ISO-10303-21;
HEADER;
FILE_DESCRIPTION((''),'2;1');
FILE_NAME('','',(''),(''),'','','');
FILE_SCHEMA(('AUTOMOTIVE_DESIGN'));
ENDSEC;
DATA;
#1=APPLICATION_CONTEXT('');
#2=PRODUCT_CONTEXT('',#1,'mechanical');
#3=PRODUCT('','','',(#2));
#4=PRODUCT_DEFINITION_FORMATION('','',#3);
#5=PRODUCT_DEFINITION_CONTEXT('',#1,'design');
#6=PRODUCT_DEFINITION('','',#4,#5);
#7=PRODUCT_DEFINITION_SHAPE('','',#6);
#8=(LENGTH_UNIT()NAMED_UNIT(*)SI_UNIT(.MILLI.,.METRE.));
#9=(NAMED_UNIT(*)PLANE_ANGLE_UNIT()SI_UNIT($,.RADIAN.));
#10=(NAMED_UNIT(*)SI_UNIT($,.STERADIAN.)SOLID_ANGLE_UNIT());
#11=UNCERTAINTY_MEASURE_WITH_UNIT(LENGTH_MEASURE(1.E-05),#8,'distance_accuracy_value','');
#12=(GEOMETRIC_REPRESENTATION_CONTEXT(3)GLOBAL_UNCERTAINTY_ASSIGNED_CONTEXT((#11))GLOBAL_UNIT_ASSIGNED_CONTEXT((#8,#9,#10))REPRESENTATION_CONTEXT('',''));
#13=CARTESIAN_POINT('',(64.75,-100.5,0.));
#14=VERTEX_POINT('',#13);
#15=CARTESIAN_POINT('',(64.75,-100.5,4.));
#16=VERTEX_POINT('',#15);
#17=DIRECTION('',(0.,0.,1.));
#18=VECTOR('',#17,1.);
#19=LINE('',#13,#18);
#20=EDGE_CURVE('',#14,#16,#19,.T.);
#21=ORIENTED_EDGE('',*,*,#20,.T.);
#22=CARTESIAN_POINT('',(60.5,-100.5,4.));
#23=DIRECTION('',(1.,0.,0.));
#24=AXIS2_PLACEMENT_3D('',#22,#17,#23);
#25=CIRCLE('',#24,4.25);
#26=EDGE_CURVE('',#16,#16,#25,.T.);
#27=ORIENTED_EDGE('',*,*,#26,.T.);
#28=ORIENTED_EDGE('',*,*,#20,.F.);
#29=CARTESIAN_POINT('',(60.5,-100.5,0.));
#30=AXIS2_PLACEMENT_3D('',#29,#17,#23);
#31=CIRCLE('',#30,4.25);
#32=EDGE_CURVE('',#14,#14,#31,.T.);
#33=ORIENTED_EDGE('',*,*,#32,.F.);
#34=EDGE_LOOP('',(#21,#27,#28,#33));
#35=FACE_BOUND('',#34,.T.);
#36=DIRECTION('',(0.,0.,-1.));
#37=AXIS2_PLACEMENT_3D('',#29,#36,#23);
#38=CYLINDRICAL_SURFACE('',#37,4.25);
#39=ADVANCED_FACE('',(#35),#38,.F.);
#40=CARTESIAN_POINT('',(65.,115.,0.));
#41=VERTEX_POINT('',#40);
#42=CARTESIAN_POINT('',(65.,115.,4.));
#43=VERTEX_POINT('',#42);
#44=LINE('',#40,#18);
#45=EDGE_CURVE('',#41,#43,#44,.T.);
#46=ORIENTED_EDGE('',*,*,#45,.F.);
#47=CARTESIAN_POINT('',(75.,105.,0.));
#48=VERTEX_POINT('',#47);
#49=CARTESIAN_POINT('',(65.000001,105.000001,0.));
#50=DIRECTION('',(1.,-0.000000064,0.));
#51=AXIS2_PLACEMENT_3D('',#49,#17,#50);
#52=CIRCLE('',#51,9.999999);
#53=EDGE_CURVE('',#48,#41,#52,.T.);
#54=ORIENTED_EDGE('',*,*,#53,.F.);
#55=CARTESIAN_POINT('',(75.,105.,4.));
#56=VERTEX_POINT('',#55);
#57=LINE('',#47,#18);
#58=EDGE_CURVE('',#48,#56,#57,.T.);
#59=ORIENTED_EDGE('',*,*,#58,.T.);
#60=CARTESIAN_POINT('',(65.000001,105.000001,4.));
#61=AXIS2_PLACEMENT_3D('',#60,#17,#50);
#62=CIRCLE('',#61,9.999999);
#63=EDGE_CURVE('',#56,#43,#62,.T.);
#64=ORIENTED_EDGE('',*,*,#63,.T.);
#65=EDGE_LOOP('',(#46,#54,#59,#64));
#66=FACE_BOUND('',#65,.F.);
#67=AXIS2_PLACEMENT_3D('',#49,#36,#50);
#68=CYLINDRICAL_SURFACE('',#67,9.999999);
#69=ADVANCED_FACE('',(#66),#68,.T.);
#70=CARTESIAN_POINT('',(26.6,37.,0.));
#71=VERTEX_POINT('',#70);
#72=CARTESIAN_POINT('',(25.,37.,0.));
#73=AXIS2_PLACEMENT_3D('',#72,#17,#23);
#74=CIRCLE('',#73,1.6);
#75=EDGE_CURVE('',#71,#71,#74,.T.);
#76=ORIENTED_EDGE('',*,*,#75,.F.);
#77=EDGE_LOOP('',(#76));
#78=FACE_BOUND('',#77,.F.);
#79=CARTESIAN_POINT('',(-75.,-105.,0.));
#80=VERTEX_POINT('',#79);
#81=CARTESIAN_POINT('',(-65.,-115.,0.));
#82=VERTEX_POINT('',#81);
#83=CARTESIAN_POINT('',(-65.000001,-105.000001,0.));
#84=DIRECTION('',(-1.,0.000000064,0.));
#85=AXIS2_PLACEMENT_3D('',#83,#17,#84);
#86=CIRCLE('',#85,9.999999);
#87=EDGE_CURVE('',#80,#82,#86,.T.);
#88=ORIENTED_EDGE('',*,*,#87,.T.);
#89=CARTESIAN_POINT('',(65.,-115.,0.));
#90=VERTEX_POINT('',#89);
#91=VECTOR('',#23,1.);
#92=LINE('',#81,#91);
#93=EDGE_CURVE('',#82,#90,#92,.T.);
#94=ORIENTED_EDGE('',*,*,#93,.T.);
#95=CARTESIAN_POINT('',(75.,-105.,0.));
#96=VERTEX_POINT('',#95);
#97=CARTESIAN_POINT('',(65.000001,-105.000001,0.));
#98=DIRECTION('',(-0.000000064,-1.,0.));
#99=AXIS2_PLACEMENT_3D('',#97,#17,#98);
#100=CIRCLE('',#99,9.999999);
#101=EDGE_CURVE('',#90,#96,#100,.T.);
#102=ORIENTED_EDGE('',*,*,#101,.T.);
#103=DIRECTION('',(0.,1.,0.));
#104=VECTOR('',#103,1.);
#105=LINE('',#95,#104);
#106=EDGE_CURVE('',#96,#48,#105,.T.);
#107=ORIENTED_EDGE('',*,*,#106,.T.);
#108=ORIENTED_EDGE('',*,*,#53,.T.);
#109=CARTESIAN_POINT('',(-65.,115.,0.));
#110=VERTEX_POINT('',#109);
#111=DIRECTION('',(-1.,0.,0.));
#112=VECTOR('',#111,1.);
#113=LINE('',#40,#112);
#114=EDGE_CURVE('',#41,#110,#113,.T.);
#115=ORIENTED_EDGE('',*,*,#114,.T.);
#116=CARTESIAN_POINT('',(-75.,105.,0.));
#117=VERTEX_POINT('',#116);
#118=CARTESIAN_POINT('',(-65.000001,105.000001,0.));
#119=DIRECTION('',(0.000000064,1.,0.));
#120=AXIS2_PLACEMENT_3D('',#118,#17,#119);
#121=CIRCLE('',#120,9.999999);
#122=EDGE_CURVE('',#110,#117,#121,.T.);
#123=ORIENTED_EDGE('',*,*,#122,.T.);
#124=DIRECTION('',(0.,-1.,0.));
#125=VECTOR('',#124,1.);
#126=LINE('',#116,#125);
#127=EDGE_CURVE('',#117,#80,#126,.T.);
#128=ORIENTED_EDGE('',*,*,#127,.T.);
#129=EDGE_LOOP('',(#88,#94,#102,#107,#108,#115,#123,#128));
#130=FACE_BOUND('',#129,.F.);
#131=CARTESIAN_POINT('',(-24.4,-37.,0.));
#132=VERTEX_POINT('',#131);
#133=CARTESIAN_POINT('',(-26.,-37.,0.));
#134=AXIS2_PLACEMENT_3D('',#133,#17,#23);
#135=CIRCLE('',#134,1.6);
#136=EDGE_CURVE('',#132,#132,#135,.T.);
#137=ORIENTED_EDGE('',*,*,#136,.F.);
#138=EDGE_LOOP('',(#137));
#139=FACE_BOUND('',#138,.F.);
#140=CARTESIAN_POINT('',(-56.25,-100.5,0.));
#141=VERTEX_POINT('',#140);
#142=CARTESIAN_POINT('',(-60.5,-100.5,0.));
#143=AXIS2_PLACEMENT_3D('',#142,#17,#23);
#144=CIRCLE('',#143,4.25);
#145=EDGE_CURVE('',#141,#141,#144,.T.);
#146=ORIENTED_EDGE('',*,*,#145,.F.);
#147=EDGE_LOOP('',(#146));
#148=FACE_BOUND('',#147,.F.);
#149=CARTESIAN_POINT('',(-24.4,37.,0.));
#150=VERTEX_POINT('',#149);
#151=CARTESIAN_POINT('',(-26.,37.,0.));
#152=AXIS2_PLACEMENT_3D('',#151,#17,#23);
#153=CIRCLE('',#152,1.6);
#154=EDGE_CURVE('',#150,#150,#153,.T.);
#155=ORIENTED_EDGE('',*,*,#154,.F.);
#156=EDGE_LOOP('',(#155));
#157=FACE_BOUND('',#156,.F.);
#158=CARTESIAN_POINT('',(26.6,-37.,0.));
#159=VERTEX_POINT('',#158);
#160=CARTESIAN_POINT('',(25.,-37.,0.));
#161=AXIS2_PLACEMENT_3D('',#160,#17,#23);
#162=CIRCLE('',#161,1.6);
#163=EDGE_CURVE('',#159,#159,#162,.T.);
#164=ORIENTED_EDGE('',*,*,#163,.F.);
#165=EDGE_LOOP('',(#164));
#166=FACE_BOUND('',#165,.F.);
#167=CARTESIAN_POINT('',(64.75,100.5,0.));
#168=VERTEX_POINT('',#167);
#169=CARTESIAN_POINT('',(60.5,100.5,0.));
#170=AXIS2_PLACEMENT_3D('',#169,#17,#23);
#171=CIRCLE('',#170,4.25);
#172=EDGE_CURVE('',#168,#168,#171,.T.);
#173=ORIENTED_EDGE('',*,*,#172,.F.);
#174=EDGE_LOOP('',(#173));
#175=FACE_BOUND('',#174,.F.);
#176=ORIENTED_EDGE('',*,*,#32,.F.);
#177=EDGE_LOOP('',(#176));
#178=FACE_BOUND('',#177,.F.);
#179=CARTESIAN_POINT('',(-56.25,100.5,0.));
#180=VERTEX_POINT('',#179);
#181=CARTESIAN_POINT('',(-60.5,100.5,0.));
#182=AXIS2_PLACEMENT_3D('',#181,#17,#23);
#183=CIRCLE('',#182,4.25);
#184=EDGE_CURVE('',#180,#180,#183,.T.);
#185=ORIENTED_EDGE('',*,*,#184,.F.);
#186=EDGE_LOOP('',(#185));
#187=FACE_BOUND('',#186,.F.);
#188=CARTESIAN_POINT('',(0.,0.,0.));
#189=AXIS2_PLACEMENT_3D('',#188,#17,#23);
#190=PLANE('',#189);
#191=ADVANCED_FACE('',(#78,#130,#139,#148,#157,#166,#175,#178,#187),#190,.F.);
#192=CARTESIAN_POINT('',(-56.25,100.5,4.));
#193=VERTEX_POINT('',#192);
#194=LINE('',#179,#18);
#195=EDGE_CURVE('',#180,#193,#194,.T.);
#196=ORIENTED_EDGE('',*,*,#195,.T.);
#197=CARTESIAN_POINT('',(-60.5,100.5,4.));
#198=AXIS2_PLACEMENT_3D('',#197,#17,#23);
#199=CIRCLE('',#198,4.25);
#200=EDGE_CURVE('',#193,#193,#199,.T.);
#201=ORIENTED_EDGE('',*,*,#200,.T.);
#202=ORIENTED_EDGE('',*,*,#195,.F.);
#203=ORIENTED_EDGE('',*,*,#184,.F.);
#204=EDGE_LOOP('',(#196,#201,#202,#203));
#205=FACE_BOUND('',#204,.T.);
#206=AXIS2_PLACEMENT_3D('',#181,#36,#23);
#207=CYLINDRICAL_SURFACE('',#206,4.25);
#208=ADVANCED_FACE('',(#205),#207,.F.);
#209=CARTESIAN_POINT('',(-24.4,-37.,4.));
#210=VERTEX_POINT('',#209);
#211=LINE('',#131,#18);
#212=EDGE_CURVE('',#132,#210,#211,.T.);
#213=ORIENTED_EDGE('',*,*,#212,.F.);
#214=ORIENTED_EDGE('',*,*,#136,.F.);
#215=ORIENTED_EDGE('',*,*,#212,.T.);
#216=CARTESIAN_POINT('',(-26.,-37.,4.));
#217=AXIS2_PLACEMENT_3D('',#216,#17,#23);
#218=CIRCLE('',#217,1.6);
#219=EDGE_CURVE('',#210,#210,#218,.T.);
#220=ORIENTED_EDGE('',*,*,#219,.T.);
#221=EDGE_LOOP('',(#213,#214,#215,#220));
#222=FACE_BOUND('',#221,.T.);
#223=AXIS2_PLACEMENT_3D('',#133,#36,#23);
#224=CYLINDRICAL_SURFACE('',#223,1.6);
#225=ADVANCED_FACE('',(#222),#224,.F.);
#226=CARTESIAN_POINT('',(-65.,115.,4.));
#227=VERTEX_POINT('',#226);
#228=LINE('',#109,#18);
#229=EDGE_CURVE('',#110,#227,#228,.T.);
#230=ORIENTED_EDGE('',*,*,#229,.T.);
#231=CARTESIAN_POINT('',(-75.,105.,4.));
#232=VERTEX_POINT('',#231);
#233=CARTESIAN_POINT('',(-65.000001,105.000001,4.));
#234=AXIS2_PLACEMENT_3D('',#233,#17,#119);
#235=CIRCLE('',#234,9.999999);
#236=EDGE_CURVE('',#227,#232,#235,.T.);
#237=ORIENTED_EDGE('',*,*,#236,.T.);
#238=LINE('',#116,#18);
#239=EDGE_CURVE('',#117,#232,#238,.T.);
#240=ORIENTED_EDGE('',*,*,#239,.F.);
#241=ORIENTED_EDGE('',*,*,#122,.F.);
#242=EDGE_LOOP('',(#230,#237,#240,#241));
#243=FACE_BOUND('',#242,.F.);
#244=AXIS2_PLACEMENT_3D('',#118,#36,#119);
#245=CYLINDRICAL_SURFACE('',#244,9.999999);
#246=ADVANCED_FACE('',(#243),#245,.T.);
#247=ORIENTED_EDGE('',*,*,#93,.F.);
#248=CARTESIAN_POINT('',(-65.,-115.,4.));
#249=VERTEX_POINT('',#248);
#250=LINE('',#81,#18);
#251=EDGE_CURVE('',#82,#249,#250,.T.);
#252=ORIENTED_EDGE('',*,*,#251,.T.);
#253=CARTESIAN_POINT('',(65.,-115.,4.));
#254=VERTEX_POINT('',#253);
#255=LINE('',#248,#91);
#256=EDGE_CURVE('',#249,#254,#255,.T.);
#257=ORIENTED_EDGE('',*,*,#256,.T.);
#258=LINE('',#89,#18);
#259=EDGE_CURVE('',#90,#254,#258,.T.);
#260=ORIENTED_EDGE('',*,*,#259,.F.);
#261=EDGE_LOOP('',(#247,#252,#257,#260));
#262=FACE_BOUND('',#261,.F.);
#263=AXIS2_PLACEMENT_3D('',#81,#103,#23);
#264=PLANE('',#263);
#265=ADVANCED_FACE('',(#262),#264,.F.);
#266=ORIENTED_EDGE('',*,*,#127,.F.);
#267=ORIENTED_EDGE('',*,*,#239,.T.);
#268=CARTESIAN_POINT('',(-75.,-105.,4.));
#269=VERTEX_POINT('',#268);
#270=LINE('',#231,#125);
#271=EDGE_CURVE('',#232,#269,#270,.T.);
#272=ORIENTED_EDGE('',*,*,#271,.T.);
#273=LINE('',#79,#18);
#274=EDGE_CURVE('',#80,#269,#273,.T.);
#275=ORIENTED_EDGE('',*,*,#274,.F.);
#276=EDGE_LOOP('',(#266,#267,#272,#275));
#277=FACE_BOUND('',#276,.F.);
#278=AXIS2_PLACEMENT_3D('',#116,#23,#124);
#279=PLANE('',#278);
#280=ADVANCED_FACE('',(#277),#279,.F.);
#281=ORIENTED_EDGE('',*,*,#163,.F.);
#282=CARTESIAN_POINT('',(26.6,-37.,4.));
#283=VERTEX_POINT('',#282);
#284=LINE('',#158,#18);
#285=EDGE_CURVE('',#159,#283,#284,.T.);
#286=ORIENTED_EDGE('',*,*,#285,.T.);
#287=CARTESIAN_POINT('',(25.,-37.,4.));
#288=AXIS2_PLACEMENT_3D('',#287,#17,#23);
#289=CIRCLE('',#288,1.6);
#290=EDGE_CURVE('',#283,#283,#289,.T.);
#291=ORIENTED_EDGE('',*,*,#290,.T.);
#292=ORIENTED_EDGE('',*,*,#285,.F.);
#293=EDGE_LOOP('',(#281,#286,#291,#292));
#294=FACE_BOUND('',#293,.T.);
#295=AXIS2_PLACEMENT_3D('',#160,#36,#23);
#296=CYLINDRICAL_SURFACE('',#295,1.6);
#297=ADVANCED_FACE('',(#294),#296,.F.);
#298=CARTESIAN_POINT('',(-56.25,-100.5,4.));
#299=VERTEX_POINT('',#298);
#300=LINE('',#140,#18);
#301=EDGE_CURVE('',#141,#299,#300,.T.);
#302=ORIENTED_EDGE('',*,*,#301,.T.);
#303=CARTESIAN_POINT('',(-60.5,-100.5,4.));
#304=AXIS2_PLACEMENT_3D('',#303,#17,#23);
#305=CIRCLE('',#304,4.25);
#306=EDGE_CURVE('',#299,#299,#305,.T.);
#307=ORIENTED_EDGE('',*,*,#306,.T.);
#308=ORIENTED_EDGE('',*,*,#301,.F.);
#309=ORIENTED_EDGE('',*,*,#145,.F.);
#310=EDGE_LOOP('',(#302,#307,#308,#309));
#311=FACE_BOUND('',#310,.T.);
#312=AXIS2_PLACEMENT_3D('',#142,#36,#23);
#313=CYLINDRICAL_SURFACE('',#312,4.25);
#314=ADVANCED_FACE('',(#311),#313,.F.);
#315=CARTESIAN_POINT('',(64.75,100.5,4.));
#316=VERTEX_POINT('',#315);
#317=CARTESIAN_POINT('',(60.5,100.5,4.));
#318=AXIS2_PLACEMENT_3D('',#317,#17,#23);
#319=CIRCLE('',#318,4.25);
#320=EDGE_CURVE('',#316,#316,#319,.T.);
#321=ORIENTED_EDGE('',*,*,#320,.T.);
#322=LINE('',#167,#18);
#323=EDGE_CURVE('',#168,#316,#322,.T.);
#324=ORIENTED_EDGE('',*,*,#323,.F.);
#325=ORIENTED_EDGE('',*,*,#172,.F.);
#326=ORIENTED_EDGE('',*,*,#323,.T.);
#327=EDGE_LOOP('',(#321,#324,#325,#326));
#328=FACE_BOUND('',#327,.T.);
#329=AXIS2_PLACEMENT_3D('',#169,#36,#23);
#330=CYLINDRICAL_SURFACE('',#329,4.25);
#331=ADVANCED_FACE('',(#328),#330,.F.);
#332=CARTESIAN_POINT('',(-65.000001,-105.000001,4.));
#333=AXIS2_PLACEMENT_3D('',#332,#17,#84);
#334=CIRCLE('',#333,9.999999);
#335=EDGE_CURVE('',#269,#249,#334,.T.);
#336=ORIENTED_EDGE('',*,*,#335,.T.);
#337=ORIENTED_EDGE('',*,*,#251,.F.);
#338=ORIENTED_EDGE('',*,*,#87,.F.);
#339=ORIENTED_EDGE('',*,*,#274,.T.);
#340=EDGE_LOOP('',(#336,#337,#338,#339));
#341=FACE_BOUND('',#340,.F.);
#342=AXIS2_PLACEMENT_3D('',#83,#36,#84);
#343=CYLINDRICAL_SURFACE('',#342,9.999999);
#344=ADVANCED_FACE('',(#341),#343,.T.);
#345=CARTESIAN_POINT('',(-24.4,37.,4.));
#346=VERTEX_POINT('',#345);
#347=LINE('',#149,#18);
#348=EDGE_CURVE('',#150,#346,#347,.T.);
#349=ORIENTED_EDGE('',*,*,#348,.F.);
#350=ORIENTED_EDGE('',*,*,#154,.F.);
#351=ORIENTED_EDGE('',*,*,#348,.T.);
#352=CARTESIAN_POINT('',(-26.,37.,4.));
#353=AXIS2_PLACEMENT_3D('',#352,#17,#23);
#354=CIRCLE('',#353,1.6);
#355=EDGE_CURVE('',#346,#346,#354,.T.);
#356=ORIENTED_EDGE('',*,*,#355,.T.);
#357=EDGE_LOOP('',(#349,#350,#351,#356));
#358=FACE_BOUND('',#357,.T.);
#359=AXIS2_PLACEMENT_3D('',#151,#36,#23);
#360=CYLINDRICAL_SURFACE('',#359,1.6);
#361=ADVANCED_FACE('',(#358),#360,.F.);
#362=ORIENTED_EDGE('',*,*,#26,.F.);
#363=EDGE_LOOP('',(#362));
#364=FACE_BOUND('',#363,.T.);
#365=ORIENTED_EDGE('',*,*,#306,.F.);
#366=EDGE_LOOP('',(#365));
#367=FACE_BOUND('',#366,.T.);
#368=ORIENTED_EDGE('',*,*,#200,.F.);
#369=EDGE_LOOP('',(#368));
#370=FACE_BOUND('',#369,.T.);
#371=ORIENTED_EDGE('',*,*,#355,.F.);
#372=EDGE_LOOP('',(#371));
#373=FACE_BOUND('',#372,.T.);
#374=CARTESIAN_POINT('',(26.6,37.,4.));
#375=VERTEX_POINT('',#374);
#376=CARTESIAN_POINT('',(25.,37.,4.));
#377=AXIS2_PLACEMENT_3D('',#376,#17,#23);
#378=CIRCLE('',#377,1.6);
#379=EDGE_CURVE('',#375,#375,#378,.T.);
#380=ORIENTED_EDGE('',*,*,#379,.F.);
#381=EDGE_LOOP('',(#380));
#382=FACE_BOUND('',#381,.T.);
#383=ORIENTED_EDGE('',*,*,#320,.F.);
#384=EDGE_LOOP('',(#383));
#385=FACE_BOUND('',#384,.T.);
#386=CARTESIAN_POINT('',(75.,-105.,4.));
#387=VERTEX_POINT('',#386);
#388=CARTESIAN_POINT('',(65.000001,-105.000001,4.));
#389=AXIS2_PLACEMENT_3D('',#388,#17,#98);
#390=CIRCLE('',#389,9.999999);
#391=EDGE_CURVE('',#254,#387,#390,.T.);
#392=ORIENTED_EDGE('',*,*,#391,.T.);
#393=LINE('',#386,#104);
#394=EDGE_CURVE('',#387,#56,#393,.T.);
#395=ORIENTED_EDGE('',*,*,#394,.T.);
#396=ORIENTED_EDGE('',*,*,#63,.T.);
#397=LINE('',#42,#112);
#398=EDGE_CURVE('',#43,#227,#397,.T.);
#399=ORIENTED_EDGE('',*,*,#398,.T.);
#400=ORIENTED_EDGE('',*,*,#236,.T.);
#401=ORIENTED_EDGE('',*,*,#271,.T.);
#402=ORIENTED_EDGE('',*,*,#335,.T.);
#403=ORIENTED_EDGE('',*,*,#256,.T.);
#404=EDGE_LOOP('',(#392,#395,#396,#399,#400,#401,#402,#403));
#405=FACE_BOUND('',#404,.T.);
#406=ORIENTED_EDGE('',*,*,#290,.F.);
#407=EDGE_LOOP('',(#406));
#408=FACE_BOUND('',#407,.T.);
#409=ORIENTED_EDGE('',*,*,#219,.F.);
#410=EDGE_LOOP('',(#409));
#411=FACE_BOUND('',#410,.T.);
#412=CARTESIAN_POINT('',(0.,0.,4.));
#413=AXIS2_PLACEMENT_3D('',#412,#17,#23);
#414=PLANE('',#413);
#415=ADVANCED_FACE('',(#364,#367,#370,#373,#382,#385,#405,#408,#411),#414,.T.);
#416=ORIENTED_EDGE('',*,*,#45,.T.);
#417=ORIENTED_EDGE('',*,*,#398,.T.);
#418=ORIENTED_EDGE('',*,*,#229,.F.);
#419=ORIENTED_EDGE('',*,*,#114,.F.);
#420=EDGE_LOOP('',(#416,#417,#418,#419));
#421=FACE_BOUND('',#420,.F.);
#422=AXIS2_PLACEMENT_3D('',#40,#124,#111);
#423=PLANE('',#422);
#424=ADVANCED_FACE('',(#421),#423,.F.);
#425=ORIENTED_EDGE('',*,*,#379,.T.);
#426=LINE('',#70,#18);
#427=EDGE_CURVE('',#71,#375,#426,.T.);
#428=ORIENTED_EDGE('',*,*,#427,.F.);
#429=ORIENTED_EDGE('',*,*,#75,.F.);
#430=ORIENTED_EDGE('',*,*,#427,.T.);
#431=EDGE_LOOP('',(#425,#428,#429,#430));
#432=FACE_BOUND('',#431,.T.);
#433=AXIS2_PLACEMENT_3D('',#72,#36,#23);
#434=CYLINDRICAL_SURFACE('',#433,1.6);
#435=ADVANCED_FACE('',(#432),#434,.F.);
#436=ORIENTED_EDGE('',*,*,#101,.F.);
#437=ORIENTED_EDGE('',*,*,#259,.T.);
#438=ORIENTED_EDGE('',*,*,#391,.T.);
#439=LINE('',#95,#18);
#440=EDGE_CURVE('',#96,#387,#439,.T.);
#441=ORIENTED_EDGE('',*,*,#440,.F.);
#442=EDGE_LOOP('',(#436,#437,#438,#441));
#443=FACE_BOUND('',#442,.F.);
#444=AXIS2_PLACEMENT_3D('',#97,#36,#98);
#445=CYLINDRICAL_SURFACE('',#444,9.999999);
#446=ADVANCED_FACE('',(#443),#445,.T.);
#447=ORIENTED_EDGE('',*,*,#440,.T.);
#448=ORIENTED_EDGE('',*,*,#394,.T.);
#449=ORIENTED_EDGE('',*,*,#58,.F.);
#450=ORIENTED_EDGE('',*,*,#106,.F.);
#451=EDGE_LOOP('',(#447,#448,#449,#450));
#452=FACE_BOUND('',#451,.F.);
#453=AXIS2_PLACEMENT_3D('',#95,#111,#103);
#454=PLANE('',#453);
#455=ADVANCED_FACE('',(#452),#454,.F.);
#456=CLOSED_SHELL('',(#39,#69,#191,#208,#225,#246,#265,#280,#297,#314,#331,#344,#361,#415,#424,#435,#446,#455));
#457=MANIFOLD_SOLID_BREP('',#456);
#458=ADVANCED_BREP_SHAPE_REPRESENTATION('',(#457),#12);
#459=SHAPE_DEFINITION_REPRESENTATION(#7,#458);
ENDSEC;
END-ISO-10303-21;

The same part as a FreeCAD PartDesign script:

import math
import FreeCAD as App
import Part
import Sketcher

doc = App.newDocument("Part")
body = doc.addObject("PartDesign::Body", "Body")

# Sketch on XY plane
sketch1 = body.newObject("Sketcher::SketchObject", "Sketch")
sketch1.AttachmentSupport = (doc.getObject("XY_Plane"), [""])
sketch1.MapMode = "FlatFace"
sketch1.addGeometry(Part.LineSegment(App.Vector(-65, -115, 0), App.Vector(65, -115, 0)), False)
sketch1.addGeometry(Part.ArcOfCircle(Part.Circle(App.Vector(65, -105, 0), App.Vector(0, 0, 1), 10), math.radians(-90), math.radians(0)), False)
sketch1.addGeometry(Part.LineSegment(App.Vector(75, -105, 0), App.Vector(75, 105, 0)), False)
sketch1.addGeometry(Part.ArcOfCircle(Part.Circle(App.Vector(65, 105, 0), App.Vector(0, 0, 1), 10), math.radians(0), math.radians(90)), False)
sketch1.addGeometry(Part.LineSegment(App.Vector(65, 115, 0), App.Vector(-65, 115, 0)), False)
sketch1.addGeometry(Part.ArcOfCircle(Part.Circle(App.Vector(-65, 105, 0), App.Vector(0, 0, 1), 10), math.radians(90), math.radians(180)), False)
sketch1.addGeometry(Part.LineSegment(App.Vector(-75, 105, 0), App.Vector(-75, -105, 0)), False)
sketch1.addGeometry(Part.ArcOfCircle(Part.Circle(App.Vector(-65, -105, 0), App.Vector(0, 0, 1), 10), math.radians(180), math.radians(270)), False)
sketch1.addGeometry(Part.Circle(App.Vector(-60.5, -100.5, 0), App.Vector(0, 0, 1), 4.2), False)
sketch1.addGeometry(Part.Circle(App.Vector(-26, -37, 0), App.Vector(0, 0, 1), 1.6), False)
sketch1.addGeometry(Part.Circle(App.Vector(60.5, -100.5, 0), App.Vector(0, 0, 1), 4.2), False)
sketch1.addGeometry(Part.Circle(App.Vector(25, -37, 0), App.Vector(0, 0, 1), 1.6), False)
sketch1.addGeometry(Part.Circle(App.Vector(-26, 37, 0), App.Vector(0, 0, 1), 1.6), False)
sketch1.addGeometry(Part.Circle(App.Vector(-60.5, 100.5, 0), App.Vector(0, 0, 1), 4.2), False)
sketch1.addGeometry(Part.Circle(App.Vector(25, 37, 0), App.Vector(0, 0, 1), 1.6), False)
sketch1.addGeometry(Part.Circle(App.Vector(60.5, 100.5, 0), App.Vector(0, 0, 1), 4.2), False)
sketch1.addConstraint(Sketcher.Constraint("Tangent", 0, 2, 1, 1))
sketch1.addConstraint(Sketcher.Constraint("Tangent", 1, 2, 2, 1))
sketch1.addConstraint(Sketcher.Constraint("Tangent", 2, 2, 3, 1))
sketch1.addConstraint(Sketcher.Constraint("Tangent", 3, 2, 4, 1))
sketch1.addConstraint(Sketcher.Constraint("Tangent", 4, 2, 5, 1))
sketch1.addConstraint(Sketcher.Constraint("Tangent", 5, 2, 6, 1))
sketch1.addConstraint(Sketcher.Constraint("Tangent", 6, 2, 7, 1))
sketch1.addConstraint(Sketcher.Constraint("Tangent", 7, 2, 0, 1))
sketch1.addConstraint(Sketcher.Constraint("Horizontal", 0))
sketch1.addConstraint(Sketcher.Constraint("Vertical", 2))
sketch1.addConstraint(Sketcher.Constraint("Horizontal", 4))
sketch1.addConstraint(Sketcher.Constraint("Vertical", 6))
sketch1.addConstraint(Sketcher.Constraint("Equal", 1, 3))
sketch1.addConstraint(Sketcher.Constraint("Equal", 3, 5))
sketch1.addConstraint(Sketcher.Constraint("Equal", 5, 7))
sketch1.addConstraint(Sketcher.Constraint("Equal", 8, 10))
sketch1.addConstraint(Sketcher.Constraint("Equal", 9, 11))
sketch1.addConstraint(Sketcher.Constraint("Equal", 11, 12))
sketch1.addConstraint(Sketcher.Constraint("Equal", 10, 13))
sketch1.addConstraint(Sketcher.Constraint("Equal", 12, 14))
sketch1.addConstraint(Sketcher.Constraint("Equal", 13, 15))
sketch1.addConstraint(Sketcher.Constraint("Symmetric", 1, 3, 5, 3, -1, 1))
sketch1.addConstraint(Sketcher.Constraint("Symmetric", 10, 3, 13, 3, -1, 1))
sketch1.addConstraint(Sketcher.Constraint("Symmetric", 8, 3, 15, 3, -1, 1))
sketch1.addConstraint(Sketcher.Constraint("Symmetric", 8, 3, 10, 3, -2))
sketch1.addConstraint(Sketcher.Constraint("Symmetric", 9, 3, 12, 3, -1))
sketch1.addConstraint(Sketcher.Constraint("Symmetric", 11, 3, 14, 3, -1))
sketch1.addConstraint(Sketcher.Constraint("Horizontal", 9, 3, 11, 3))
sketch1.addConstraint(Sketcher.Constraint("Radius", 1, 9.999999))
sketch1.addConstraint(Sketcher.Constraint("Diameter", 8, 8.5))
sketch1.addConstraint(Sketcher.Constraint("Diameter", 9, 3.2))
sketch1.addConstraint(Sketcher.Constraint("DistanceX", 0, 1, 0, 2, 130.0))
sketch1.addConstraint(Sketcher.Constraint("DistanceY", 2, 1, 2, 2, 210.0))
sketch1.addConstraint(Sketcher.Constraint("DistanceX", 9, 3, -1, 1, 26.0))
sketch1.addConstraint(Sketcher.Constraint("DistanceY", 9, 3, -1, 1, 37.0))
sketch1.addConstraint(Sketcher.Constraint("DistanceX", -1, 1, 11, 3, 25.0))
sketch1.addConstraint(Sketcher.Constraint("DistanceX", 8, 3, 10, 3, 121.0))
sketch1.addConstraint(Sketcher.Constraint("DistanceY", 8, 3, -1, 1, 100.5))
pad1 = body.newObject("PartDesign::Pad", "Pad")
pad1.Profile = sketch1
pad1.Length = 4

doc.recompute()
